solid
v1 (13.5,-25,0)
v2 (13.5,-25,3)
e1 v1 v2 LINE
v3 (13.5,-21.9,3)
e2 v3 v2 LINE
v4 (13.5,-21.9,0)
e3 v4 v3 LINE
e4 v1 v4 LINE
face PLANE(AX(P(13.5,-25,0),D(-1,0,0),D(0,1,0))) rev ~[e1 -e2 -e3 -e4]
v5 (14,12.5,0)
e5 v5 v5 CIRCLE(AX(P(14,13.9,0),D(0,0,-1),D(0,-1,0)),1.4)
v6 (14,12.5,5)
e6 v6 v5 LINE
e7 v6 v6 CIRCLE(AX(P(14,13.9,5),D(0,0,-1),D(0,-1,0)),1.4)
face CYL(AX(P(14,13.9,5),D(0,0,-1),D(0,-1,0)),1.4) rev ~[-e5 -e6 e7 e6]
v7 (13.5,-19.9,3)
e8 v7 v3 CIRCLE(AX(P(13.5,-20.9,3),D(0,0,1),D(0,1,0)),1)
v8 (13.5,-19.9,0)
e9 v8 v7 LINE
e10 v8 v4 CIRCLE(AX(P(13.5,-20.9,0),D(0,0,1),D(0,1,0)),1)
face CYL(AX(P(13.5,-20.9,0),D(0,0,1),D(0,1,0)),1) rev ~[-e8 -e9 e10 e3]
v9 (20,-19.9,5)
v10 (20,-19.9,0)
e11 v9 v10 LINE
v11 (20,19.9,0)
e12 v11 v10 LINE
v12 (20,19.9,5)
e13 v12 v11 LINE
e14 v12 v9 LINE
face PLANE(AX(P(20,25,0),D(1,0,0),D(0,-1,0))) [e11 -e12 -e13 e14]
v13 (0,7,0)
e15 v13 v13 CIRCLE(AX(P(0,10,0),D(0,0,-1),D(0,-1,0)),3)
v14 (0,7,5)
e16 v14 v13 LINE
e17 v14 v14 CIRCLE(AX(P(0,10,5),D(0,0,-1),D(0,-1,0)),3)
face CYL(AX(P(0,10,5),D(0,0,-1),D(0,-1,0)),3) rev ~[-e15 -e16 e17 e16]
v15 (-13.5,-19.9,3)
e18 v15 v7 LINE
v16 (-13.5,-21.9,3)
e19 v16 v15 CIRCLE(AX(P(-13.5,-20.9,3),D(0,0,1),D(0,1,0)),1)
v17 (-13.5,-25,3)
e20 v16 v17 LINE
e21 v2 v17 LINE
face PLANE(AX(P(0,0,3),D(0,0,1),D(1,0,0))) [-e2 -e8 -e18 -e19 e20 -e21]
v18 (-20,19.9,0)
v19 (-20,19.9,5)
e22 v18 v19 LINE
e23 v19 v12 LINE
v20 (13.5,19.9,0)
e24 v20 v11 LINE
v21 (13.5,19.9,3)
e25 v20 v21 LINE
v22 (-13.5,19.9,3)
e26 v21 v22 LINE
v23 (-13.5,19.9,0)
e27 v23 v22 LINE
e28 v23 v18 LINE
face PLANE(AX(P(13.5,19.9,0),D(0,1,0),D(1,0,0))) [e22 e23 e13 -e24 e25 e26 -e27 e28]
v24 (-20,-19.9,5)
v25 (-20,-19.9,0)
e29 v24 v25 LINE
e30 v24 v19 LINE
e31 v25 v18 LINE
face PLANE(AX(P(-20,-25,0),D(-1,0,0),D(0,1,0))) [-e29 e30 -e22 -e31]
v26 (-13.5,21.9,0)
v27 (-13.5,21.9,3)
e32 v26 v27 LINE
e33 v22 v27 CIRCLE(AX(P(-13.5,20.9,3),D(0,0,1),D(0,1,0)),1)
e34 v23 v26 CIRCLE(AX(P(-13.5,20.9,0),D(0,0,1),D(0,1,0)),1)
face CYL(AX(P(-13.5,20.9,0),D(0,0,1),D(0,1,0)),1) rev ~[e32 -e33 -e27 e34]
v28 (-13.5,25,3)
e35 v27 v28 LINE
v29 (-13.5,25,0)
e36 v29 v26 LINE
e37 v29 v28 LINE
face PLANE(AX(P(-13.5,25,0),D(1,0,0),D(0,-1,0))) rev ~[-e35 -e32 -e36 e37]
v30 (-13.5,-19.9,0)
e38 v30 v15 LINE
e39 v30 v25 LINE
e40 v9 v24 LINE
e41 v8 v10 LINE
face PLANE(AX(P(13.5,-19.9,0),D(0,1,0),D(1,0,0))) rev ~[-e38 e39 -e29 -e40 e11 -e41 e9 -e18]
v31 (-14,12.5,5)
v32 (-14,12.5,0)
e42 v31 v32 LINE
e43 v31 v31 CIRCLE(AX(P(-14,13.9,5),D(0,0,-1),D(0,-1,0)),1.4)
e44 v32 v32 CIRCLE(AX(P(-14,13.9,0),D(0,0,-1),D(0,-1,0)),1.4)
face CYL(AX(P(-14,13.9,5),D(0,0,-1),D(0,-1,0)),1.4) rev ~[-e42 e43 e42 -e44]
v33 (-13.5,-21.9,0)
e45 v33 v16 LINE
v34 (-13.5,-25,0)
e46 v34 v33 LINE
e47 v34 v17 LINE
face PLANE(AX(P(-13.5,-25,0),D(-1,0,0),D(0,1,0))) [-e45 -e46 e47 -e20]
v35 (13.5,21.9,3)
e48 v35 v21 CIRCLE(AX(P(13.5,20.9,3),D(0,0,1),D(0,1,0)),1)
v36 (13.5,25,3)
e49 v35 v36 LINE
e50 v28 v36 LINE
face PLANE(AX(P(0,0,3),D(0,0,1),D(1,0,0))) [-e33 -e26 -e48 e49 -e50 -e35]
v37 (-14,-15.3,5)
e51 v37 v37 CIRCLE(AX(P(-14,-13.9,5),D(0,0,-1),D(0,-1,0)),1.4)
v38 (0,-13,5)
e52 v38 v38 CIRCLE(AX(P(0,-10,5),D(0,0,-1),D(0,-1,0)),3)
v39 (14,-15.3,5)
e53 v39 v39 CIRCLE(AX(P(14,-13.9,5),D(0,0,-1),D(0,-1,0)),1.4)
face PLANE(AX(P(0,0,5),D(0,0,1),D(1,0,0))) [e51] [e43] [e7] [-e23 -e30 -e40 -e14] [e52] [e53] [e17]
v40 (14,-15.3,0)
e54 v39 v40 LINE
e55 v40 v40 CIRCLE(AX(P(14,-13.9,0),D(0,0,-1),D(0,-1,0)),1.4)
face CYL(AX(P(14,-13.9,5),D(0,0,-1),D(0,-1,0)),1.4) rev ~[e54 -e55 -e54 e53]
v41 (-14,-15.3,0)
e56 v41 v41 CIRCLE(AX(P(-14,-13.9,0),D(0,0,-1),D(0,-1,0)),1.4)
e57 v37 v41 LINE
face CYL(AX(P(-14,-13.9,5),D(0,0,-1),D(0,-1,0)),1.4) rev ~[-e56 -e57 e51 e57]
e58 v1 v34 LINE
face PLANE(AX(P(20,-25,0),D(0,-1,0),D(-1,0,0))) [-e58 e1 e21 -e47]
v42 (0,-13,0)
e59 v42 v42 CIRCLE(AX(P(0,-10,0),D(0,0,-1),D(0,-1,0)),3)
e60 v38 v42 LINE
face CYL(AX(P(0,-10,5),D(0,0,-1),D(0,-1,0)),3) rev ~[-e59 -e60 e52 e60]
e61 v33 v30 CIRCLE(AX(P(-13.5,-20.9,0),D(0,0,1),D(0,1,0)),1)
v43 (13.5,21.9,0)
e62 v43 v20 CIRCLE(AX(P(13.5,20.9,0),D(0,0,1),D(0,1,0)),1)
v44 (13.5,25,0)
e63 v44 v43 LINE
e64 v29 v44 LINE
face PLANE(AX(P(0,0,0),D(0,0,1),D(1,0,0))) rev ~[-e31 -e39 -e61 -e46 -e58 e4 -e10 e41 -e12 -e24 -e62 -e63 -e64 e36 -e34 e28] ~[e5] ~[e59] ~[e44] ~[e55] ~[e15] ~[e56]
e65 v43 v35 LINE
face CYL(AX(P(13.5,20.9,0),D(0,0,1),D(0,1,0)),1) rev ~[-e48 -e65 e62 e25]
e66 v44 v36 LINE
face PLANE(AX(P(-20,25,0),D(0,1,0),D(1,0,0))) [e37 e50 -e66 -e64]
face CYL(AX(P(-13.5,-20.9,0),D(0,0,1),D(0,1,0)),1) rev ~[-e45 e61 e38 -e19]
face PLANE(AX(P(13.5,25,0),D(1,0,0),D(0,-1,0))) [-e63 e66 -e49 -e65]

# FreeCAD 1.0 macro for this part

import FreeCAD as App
import Part
import Sketcher

V = App.Vector
Q = App.Units.Quantity

doc = App.newDocument("Part")
body = doc.addObject("PartDesign::Body", "Body")

# Sketch on XY plane
sketch1 = body.newObject("Sketcher::SketchObject", "Sketch")
sketch1.AttachmentSupport = (doc.getObject("XY_Plane"), [""])
sketch1.MapMode = "FlatFace"
sketch1.addGeometry(Part.LineSegment(V(20, 25, 0), V(-20, 25, 0)), False)
sketch1.addGeometry(Part.LineSegment(V(-20, 25, 0), V(-20, -25, 0)), False)
sketch1.addGeometry(Part.LineSegment(V(-20, -25, 0), V(20, -25, 0)), False)
sketch1.addGeometry(Part.LineSegment(V(20, -25, 0), V(20, 25, 0)), False)
sketch1.addConstraint(Sketcher.Constraint("Coincident", 0, 2, 1, 1))
sketch1.addConstraint(Sketcher.Constraint("Coincident", 1, 2, 2, 1))
sketch1.addConstraint(Sketcher.Constraint("Coincident", 2, 2, 3, 1))
sketch1.addConstraint(Sketcher.Constraint("Coincident", 3, 2, 0, 1))
sketch1.addConstraint(Sketcher.Constraint("Horizontal", 0))
sketch1.addConstraint(Sketcher.Constraint("Vertical", 1))
sketch1.addConstraint(Sketcher.Constraint("Horizontal", 2))
sketch1.addConstraint(Sketcher.Constraint("Vertical", 3))
sketch1.addConstraint(Sketcher.Constraint("Symmetric", 0, 2, 2, 2, -1, 1))
sketch1.addConstraint(Sketcher.Constraint("DistanceX", 0, 2, 0, 1, Q("40 mm")))
sketch1.addConstraint(Sketcher.Constraint("DistanceY", 1, 2, 1, 1, Q("50 mm")))
pad1 = body.newObject("PartDesign::Pad", "Pad")
pad1.Profile = sketch1
pad1.Length = 5

# Sketch on XY plane
sketch2 = body.newObject("Sketcher::SketchObject", "Sketch001")
sketch2.AttachmentSupport = (doc.getObject("XY_Plane"), [""])
sketch2.MapMode = "FlatFace"
sketch2.AttachmentOffset = App.Placement(V(0, 0, 5), App.Rotation())
sketch2.addGeometry(Part.LineSegment(V(20, 20, 0), V(20, 25, 0)), False)
sketch2.addGeometry(Part.LineSegment(V(20, 25, 0), V(-20, 25, 0)), False)
sketch2.addGeometry(Part.LineSegment(V(-20, 25, 0), V(-20, 20, 0)), False)
sketch2.addGeometry(Part.LineSegment(V(-20, 20, 0), V(20, 20, 0)), False)
sketch2.addGeometry(Part.LineSegment(V(20, -25, 0), V(20, -20, 0)), False)
sketch2.addGeometry(Part.LineSegment(V(20, -20, 0), V(-20, -20, 0)), False)
sketch2.addGeometry(Part.LineSegment(V(-20, -20, 0), V(-20, -25, 0)), False)
sketch2.addGeometry(Part.LineSegment(V(-20, -25, 0), V(20, -25, 0)), False)
sketch2.addConstraint(Sketcher.Constraint("Coincident", 0, 2, 1, 1))
sketch2.addConstraint(Sketcher.Constraint("Coincident", 1, 2, 2, 1))
sketch2.addConstraint(Sketcher.Constraint("Coincident", 2, 2, 3, 1))
sketch2.addConstraint(Sketcher.Constraint("Coincident", 3, 2, 0, 1))
sketch2.addConstraint(Sketcher.Constraint("Coincident", 4, 2, 5, 1))
sketch2.addConstraint(Sketcher.Constraint("Coincident", 5, 2, 6, 1))
sketch2.addConstraint(Sketcher.Constraint("Coincident", 6, 2, 7, 1))
sketch2.addConstraint(Sketcher.Constraint("Coincident", 7, 2, 4, 1))
sketch2.addConstraint(Sketcher.Constraint("Vertical", 0))
sketch2.addConstraint(Sketcher.Constraint("Horizontal", 1))
sketch2.addConstraint(Sketcher.Constraint("Vertical", 2))
sketch2.addConstraint(Sketcher.Constraint("Horizontal", 3))
sketch2.addConstraint(Sketcher.Constraint("Vertical", 4))
sketch2.addConstraint(Sketcher.Constraint("Horizontal", 5))
sketch2.addConstraint(Sketcher.Constraint("Vertical", 6))
sketch2.addConstraint(Sketcher.Constraint("Horizontal", 7))
sketch2.addConstraint(Sketcher.Constraint("Symmetric", 2, 2, 4, 2, -1, 1))
sketch2.addConstraint(Sketcher.Constraint("Symmetric", 0, 2, 6, 2, -1, 1))
sketch2.addConstraint(Sketcher.Constraint("Vertical", 3, 2, 4, 2))
sketch2.addConstraint(Sketcher.Constraint("DistanceY", 0, 1, 0, 2, Q("5.1 mm")))
sketch2.addConstraint(Sketcher.Constraint("DistanceX", 1, 2, 1, 1, Q("40 mm")))
sketch2.addConstraint(Sketcher.Constraint("DistanceY", -1, 1, 0, 2, Q("25 mm")))
pocket1 = body.newObject("PartDesign::Pocket", "Pocket")
pocket1.Profile = sketch2
pocket1.Length = 2

# Sketch on XY plane
sketch3 = body.newObject("Sketcher::SketchObject", "Sketch002")
sketch3.AttachmentSupport = (doc.getObject("XY_Plane"), [""])
sketch3.MapMode = "FlatFace"
sketch3.AttachmentOffset = App.Placement(V(0, 0, 5), App.Rotation())
sketch3.addGeometry(Part.Circle(V(0, 10, 0), V(0, 0, 1), 3), False)
sketch3.addGeometry(Part.Circle(V(0, -10, 0), V(0, 0, 1), 3), False)
sketch3.addConstraint(Sketcher.Constraint("Equal", 0, 1))
sketch3.addConstraint(Sketcher.Constraint("Symmetric", 0, 3, 1, 3, -1, 1))
sketch3.addConstraint(Sketcher.Constraint("PointOnObject", 0, 3, -2))
sketch3.addConstraint(Sketcher.Constraint("Diameter", 0, Q("6 mm")))
sketch3.addConstraint(Sketcher.Constraint("DistanceY", -1, 1, 0, 3, Q("10 mm")))
doc.recompute()
hole = body.newObject("PartDesign::Hole", "Hole")
hole.Profile = sketch3
hole.ThreadType = "None"
hole.Diameter = 6
hole.DepthType = "ThroughAll"

# Sketch on XY plane
sketch4 = body.newObject("Sketcher::SketchObject", "Sketch003")
sketch4.AttachmentSupport = (doc.getObject("XY_Plane"), [""])
sketch4.MapMode = "FlatFace"
sketch4.addGeometry(Part.LineSegment(V(-20, 20, 0), V(-20, 25, 0)), False)
sketch4.addGeometry(Part.LineSegment(V(-20, 25, 0), V(-14, 25, 0)), False)
sketch4.addGeometry(Part.LineSegment(V(-14, 25, 0), V(-14, 20, 0)), False)
sketch4.addGeometry(Part.LineSegment(V(-14, 20, 0), V(-20, 20, 0)), False)
sketch4.addGeometry(Part.LineSegment(V(14, 20, 0), V(14, 25, 0)), False)
sketch4.addGeometry(Part.LineSegment(V(14, 25, 0), V(20, 25, 0)), False)
sketch4.addGeometry(Part.LineSegment(V(20, 25, 0), V(20, 20, 0)), False)
sketch4.addGeometry(Part.LineSegment(V(20, 20, 0), V(14, 20, 0)), False)
sketch4.addGeometry(Part.LineSegment(V(-14, -25, 0), V(-20, -25, 0)), False)
sketch4.addGeometry(Part.LineSegment(V(-20, -25, 0), V(-20, -20, 0)), False)
sketch4.addGeometry(Part.LineSegment(V(-20, -20, 0), V(-14, -20, 0)), False)
sketch4.addGeometry(Part.LineSegment(V(-14, -20, 0), V(-14, -25, 0)), False)
sketch4.addGeometry(Part.LineSegment(V(20, -20, 0), V(20, -25, 0)), False)
sketch4.addGeometry(Part.LineSegment(V(20, -25, 0), V(14, -25, 0)), False)
sketch4.addGeometry(Part.LineSegment(V(14, -25, 0), V(14, -20, 0)), False)
sketch4.addGeometry(Part.LineSegment(V(14, -20, 0), V(20, -20, 0)), False)
sketch4.addConstraint(Sketcher.Constraint("Coincident", 0, 2, 1, 1))
sketch4.addConstraint(Sketcher.Constraint("Coincident", 1, 2, 2, 1))
sketch4.addConstraint(Sketcher.Constraint("Coincident", 2, 2, 3, 1))
sketch4.addConstraint(Sketcher.Constraint("Coincident", 3, 2, 0, 1))
sketch4.addConstraint(Sketcher.Constraint("Coincident", 4, 2, 5, 1))
sketch4.addConstraint(Sketcher.Constraint("Coincident", 5, 2, 6, 1))
sketch4.addConstraint(Sketcher.Constraint("Coincident", 6, 2, 7, 1))
sketch4.addConstraint(Sketcher.Constraint("Coincident", 7, 2, 4, 1))
sketch4.addConstraint(Sketcher.Constraint("Coincident", 8, 2, 9, 1))
sketch4.addConstraint(Sketcher.Constraint("Coincident", 9, 2, 10, 1))
sketch4.addConstraint(Sketcher.Constraint("Coincident", 10, 2, 11, 1))
sketch4.addConstraint(Sketcher.Constraint("Coincident", 11, 2, 8, 1))
sketch4.addConstraint(Sketcher.Constraint("Coincident", 12, 2, 13, 1))
sketch4.addConstraint(Sketcher.Constraint("Coincident", 13, 2, 14, 1))
sketch4.addConstraint(Sketcher.Constraint("Coincident", 14, 2, 15, 1))
sketch4.addConstraint(Sketcher.Constraint("Coincident", 15, 2, 12, 1))
sketch4.addConstraint(Sketcher.Constraint("Vertical", 0))
sketch4.addConstraint(Sketcher.Constraint("Horizontal", 1))
sketch4.addConstraint(Sketcher.Constraint("Vertical", 2))
sketch4.addConstraint(Sketcher.Constraint("Horizontal", 3))
sketch4.addConstraint(Sketcher.Constraint("Vertical", 4))
sketch4.addConstraint(Sketcher.Constraint("Horizontal", 5))
sketch4.addConstraint(Sketcher.Constraint("Vertical", 6))
sketch4.addConstraint(Sketcher.Constraint("Horizontal", 7))
sketch4.addConstraint(Sketcher.Constraint("Horizontal", 8))
sketch4.addConstraint(Sketcher.Constraint("Vertical", 9))
sketch4.addConstraint(Sketcher.Constraint("Horizontal", 10))
sketch4.addConstraint(Sketcher.Constraint("Vertical", 11))
sketch4.addConstraint(Sketcher.Constraint("Vertical", 12))
sketch4.addConstraint(Sketcher.Constraint("Horizontal", 13))
sketch4.addConstraint(Sketcher.Constraint("Vertical", 14))
sketch4.addConstraint(Sketcher.Constraint("Horizontal", 15))
sketch4.addConstraint(Sketcher.Constraint("Symmetric", 5, 2, 8, 2, -1, 1))
sketch4.addConstraint(Sketcher.Constraint("Symmetric", 7, 2, 10, 2, -1, 1))
sketch4.addConstraint(Sketcher.Constraint("Symmetric", 0, 2, 12, 2, -1, 1))
sketch4.addConstraint(Sketcher.Constraint("Symmetric", 2, 2, 14, 2, -1, 1))
sketch4.addConstraint(Sketcher.Constraint("Symmetric", 1, 2, 4, 2, -2))
sketch4.addConstraint(Sketcher.Constraint("Symmetric", 3, 2, 6, 2, -2))
sketch4.addConstraint(Sketcher.Constraint("DistanceY", 0, 1, 0, 2, Q("5.1 mm")))
sketch4.addConstraint(Sketcher.Constraint("DistanceX", 1, 2, 4, 2, Q("27 mm")))
sketch4.addConstraint(Sketcher.Constraint("DistanceX", 1, 1, 1, 2, Q("6.5 mm")))
sketch4.addConstraint(Sketcher.Constraint("DistanceY", -1, 1, 0, 2, Q("25 mm")))
pocket2 = body.newObject("PartDesign::Pocket", "Pocket001")
pocket2.Profile = sketch4
pocket2.Type = "ThroughAll"
pocket2.Reversed = True

# Sketch on XY plane
sketch5 = body.newObject("Sketcher::SketchObject", "Sketch004")
sketch5.AttachmentSupport = (doc.getObject("XY_Plane"), [""])
sketch5.MapMode = "FlatFace"
sketch5.AttachmentOffset = App.Placement(V(0, 0, 5), App.Rotation())
sketch5.addGeometry(Part.Circle(V(-14, 13.9, 0), V(0, 0, 1), 1.4), False)
sketch5.addGeometry(Part.Circle(V(-14, -13.9, 0), V(0, 0, 1), 1.4), False)
sketch5.addGeometry(Part.Circle(V(14, -13.9, 0), V(0, 0, 1), 1.4), False)
sketch5.addGeometry(Part.Circle(V(14, 13.9, 0), V(0, 0, 1), 1.4), False)
sketch5.addConstraint(Sketcher.Constraint("Equal", 0, 1))
sketch5.addConstraint(Sketcher.Constraint("Equal", 1, 2))
sketch5.addConstraint(Sketcher.Constraint("Equal", 2, 3))
sketch5.addConstraint(Sketcher.Constraint("Symmetric", 0, 3, 2, 3, -1, 1))
sketch5.addConstraint(Sketcher.Constraint("Symmetric", 1, 3, 3, 3, -1, 1))
sketch5.addConstraint(Sketcher.Constraint("Symmetric", 1, 3, 2, 3, -2))
sketch5.addConstraint(Sketcher.Constraint("Diameter", 0, Q("2.8 mm")))
sketch5.addConstraint(Sketcher.Constraint("DistanceX", 0, 3, -1, 1, Q("14 mm")))
sketch5.addConstraint(Sketcher.Constraint("DistanceY", -1, 1, 0, 3, Q("13.9 mm")))
doc.recompute()
hole2 = body.newObject("PartDesign::Hole", "Hole001")
hole2.Profile = sketch5
hole2.ThreadType = "None"
hole2.Diameter = 2.8
hole2.DepthType = "Dimension"
hole2.Depth = 8
hole2.DrillPoint = "Angled"
hole2.DrillPointAngle = 118

# Sketch on XY plane
sketch6 = body.newObject("Sketcher::SketchObject", "Sketch005")
sketch6.AttachmentSupport = (doc.getObject("XY_Plane"), [""])
sketch6.MapMode = "FlatFace"
sketch6.addGeometry(Part.Circle(V(13.5, 20.9, 0), V(0, 0, 1), 1), False)
sketch6.addGeometry(Part.Circle(V(-13.5, 20.9, 0), V(0, 0, 1), 1), False)
sketch6.addGeometry(Part.Circle(V(-13.5, -20.9, 0), V(0, 0, 1), 1), False)
sketch6.addGeometry(Part.Circle(V(13.5, -20.9, 0), V(0, 0, 1), 1), False)
sketch6.addConstraint(Sketcher.Constraint("Equal", 0, 1))
sketch6.addConstraint(Sketcher.Constraint("Equal", 1, 2))
sketch6.addConstraint(Sketcher.Constraint("Equal", 2, 3))
sketch6.addConstraint(Sketcher.Constraint("Symmetric", 0, 3, 2, 3, -1, 1))
sketch6.addConstraint(Sketcher.Constraint("Symmetric", 1, 3, 3, 3, -1, 1))
sketch6.addConstraint(Sketcher.Constraint("Symmetric", 0, 3, 1, 3, -2))
sketch6.addConstraint(Sketcher.Constraint("Diameter", 0, Q("2 mm")))
sketch6.addConstraint(Sketcher.Constraint("DistanceX", 1, 3, 0, 3, Q("27 mm")))
sketch6.addConstraint(Sketcher.Constraint("DistanceY", -1, 1, 0, 3, Q("20.9 mm")))
doc.recompute()
hole3 = body.newObject("PartDesign::Hole", "Hole002")
hole3.Profile = sketch6
hole3.ThreadType = "None"
hole3.Diameter = 2
hole3.DepthType = "Dimension"
hole3.Depth = 8
hole3.DrillPoint = "Angled"
hole3.DrillPointAngle = 118
hole3.Reversed = True

doc.recompute()
